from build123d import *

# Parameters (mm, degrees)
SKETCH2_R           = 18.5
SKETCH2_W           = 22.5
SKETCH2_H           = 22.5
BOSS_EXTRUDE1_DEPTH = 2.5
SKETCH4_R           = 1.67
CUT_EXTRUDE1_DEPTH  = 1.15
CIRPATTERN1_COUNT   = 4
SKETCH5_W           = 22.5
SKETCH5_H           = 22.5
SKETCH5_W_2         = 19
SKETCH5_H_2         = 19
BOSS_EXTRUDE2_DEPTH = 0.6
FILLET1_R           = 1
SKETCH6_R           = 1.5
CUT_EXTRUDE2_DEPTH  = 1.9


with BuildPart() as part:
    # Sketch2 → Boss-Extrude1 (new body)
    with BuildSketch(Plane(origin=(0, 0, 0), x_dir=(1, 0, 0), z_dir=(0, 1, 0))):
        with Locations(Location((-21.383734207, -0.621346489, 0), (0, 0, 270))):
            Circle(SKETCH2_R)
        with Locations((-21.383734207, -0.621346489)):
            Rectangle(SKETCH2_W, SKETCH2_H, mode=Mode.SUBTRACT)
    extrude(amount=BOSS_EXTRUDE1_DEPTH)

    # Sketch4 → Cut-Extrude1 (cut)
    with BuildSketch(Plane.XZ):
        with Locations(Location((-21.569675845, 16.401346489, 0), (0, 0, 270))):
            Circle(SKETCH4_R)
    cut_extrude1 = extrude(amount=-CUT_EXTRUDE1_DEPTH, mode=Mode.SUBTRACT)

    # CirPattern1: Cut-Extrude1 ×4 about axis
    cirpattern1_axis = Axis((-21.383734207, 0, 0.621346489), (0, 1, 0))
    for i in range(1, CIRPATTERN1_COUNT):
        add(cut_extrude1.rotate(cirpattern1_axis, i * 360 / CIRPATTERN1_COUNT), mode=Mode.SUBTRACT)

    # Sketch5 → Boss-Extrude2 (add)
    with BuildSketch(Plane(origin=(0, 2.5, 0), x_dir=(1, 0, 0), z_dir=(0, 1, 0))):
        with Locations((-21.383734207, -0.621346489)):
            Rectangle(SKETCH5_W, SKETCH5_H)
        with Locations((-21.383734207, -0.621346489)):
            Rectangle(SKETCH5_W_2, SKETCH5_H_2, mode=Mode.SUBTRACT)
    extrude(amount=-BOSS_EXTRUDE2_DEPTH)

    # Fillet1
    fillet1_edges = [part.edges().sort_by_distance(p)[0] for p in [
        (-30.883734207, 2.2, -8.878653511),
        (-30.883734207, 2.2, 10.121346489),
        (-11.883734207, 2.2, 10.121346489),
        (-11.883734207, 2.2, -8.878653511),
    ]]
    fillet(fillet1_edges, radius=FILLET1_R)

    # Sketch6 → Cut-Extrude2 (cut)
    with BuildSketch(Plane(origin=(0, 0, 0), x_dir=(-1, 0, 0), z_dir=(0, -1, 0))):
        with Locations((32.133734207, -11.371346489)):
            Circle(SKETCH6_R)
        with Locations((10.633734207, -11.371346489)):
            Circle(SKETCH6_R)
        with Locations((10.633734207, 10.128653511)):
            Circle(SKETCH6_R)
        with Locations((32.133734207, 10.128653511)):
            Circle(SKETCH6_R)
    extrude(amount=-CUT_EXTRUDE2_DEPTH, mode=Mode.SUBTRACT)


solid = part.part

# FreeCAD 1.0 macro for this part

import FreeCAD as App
import Part
import Sketcher


def edges_at(feature, points):
    """Names of the edges that pass closest to the given points."""
    edges = feature.Shape.Edges
    near = lambda p: min(range(len(edges)), key=lambda i: edges[i].distToShape(Part.Vertex(*p))[0])
    return sorted({f"Edge{near(p) + 1}" for p in points})


def add_polygon(sketch, points):
    """Adds a closed chain of lines whose ends are joined by coincident constraints."""
    first, n = sketch.GeometryCount, len(points)
    for a, b in zip(points, points[1:] + points[:1]):
        sketch.addGeometry(Part.LineSegment(App.Vector(*a, 0), App.Vector(*b, 0)), False)
    for i in range(n):
        sketch.addConstraint(Sketcher.Constraint("Coincident", first + i, 2, first + (i + 1) % n, 1))

doc = App.newDocument("Part")
body = doc.addObject("PartDesign::Body", "Body")

# Sketch on XZ plane
sketch1 = body.newObject("Sketcher::SketchObject", "Sketch")
sketch1.AttachmentSupport = (doc.getObject("XZ_Plane"), [""])
sketch1.MapMode = "FlatFace"
sketch1.addGeometry(Part.Circle(App.Vector(-21.383734, 0.621346, 0), App.Vector(0, 0, 1), 18.5), False)  # 0
add_polygon(sketch1, [(-10.133734, 11.871346), (-32.633734, 11.871346), (-32.633734, -10.628654), (-10.133734, -10.628654)])  # lines 1-4
sketch1.addConstraint(Sketcher.Constraint("Horizontal", 1))
sketch1.addConstraint(Sketcher.Constraint("Vertical", 2))
sketch1.addConstraint(Sketcher.Constraint("Horizontal", 3))
sketch1.addConstraint(Sketcher.Constraint("Vertical", 4))
sketch1.addConstraint(Sketcher.Constraint("Equal", 3, 2))
sketch1.addConstraint(Sketcher.Constraint("Diameter", 0, 37.0))
sketch1.addConstraint(Sketcher.Constraint("DistanceX", 1, 2, 1, 1, 22.5))
sketch1.addConstraint(Sketcher.Constraint("DistanceX", 1, 2, 0, 3, 11.25))
sketch1.addConstraint(Sketcher.Constraint("DistanceY", 0, 3, 1, 2, 11.25))
sketch1.addConstraint(Sketcher.Constraint("DistanceX", 0, 3, -1, 1, 21.383734))
sketch1.addConstraint(Sketcher.Constraint("DistanceY", -1, 1, 0, 3, 0.621346))
pad1 = body.newObject("PartDesign::Pad", "Pad")
pad1.Profile = sketch1
pad1.Length = 2.5
pad1.Reversed = True

# Sketch on XZ plane
sketch2 = body.newObject("Sketcher::SketchObject", "Sketch001")
sketch2.AttachmentSupport = (doc.getObject("XZ_Plane"), [""])
sketch2.MapMode = "FlatFace"
sketch2.addGeometry(Part.Circle(App.Vector(-21.569676, 16.401346, 0), App.Vector(0, 0, 1), 1.67), False)
sketch2.addConstraint(Sketcher.Constraint("Diameter", 0, 3.34))
sketch2.addConstraint(Sketcher.Constraint("DistanceX", 0, 3, -1, 1, 21.569676))
sketch2.addConstraint(Sketcher.Constraint("DistanceY", -1, 1, 0, 3, 16.401346))
pocket1 = body.newObject("PartDesign::Pocket", "Pocket")
pocket1.Profile = sketch2
pocket1.Length = 1.15
doc.recompute()

datumline = body.newObject("PartDesign::Line", "DatumLine")
datumline.Placement = App.Placement(App.Vector(-21.383734, 0, 0.621346), App.Rotation(App.Vector(0, 0, 1), App.Vector(0, 1, 0)))
polarpattern = body.newObject("PartDesign::PolarPattern", "PolarPattern")
polarpattern.Originals = [pocket1]
polarpattern.Axis = (datumline, [""])
polarpattern.Angle = 360
polarpattern.Occurrences = 4
body.Tip = polarpattern

# Sketch on XZ plane
sketch3 = body.newObject("Sketcher::SketchObject", "Sketch002")
sketch3.AttachmentSupport = (doc.getObject("XZ_Plane"), [""])
sketch3.MapMode = "FlatFace"
sketch3.AttachmentOffset = App.Placement(App.Vector(0, 0, -2.5), App.Rotation())
add_polygon(sketch3, [(-32.633734, -10.628654), (-32.633734, 11.871346), (-10.133734, 11.871346), (-10.133734, -10.628654)])  # lines 0-3
add_polygon(sketch3, [(-11.883734, 10.121346), (-30.883734, 10.121346), (-30.883734, -8.878654), (-11.883734, -8.878654)])  # lines 4-7
sketch3.addConstraint(Sketcher.Constraint("Vertical", 0))
sketch3.addConstraint(Sketcher.Constraint("Horizontal", 1))
sketch3.addConstraint(Sketcher.Constraint("Vertical", 2))
sketch3.addConstraint(Sketcher.Constraint("Horizontal", 3))
sketch3.addConstraint(Sketcher.Constraint("Horizontal", 4))
sketch3.addConstraint(Sketcher.Constraint("Vertical", 5))
sketch3.addConstraint(Sketcher.Constraint("Horizontal", 6))
sketch3.addConstraint(Sketcher.Constraint("Vertical", 7))
sketch3.addConstraint(Sketcher.Constraint("Equal", 3, 0))
sketch3.addConstraint(Sketcher.Constraint("Equal", 6, 5))
sketch3.addConstraint(Sketcher.Constraint("DistanceX", 4, 2, 4, 1, 19.0))
sketch3.addConstraint(Sketcher.Constraint("DistanceX", 1, 1, 1, 2, 22.5))
sketch3.addConstraint(Sketcher.Constraint("DistanceX", 0, 2, 4, 2, 1.75))
sketch3.addConstraint(Sketcher.Constraint("DistanceY", 4, 2, 0, 2, 1.75))
sketch3.addConstraint(Sketcher.Constraint("DistanceX", 0, 2, -1, 1, 32.633734))
sketch3.addConstraint(Sketcher.Constraint("DistanceY", -1, 1, 0, 2, 11.871346))
pad2 = body.newObject("PartDesign::Pad", "Pad001")
pad2.Profile = sketch3
pad2.Length = 0.6
doc.recompute()

fillet = body.newObject("PartDesign::Fillet", "Fillet")
fillet.Base = (pad2, edges_at(pad2, [
    (-30.884, 2.2, -8.879),
    (-30.884, 2.2, 10.121),
    (-11.884, 2.2, 10.121),
    (-11.884, 2.2, -8.879),
]))
fillet.Radius = 1

# Sketch on XZ plane
sketch4 = body.newObject("Sketcher::SketchObject", "Sketch003")
sketch4.AttachmentSupport = (doc.getObject("XZ_Plane"), [""])
sketch4.MapMode = "FlatFace"
sketch4.addGeometry(Part.Circle(App.Vector(-32.133734, 11.371346, 0), App.Vector(0, 0, 1), 1.5), False)
sketch4.addGeometry(Part.Circle(App.Vector(-10.633734, 11.371346, 0), App.Vector(0, 0, 1), 1.5), False)
sketch4.addGeometry(Part.Circle(App.Vector(-10.633734, -10.128654, 0), App.Vector(0, 0, 1), 1.5), False)
sketch4.addGeometry(Part.Circle(App.Vector(-32.133734, -10.128654, 0), App.Vector(0, 0, 1), 1.5), False)
sketch4.addConstraint(Sketcher.Constraint("Equal", 0, 1))
sketch4.addConstraint(Sketcher.Constraint("Equal", 1, 2))
sketch4.addConstraint(Sketcher.Constraint("Equal", 2, 3))
sketch4.addConstraint(Sketcher.Constraint("Horizontal", 0, 3, 1, 3))
sketch4.addConstraint(Sketcher.Constraint("Horizontal", 2, 3, 3, 3))
sketch4.addConstraint(Sketcher.Constraint("Vertical", 1, 3, 2, 3))
sketch4.addConstraint(Sketcher.Constraint("Vertical", 0, 3, 3, 3))
sketch4.addConstraint(Sketcher.Constraint("Diameter", 0, 3.0))
sketch4.addConstraint(Sketcher.Constraint("DistanceX", 0, 3, 1, 3, 21.5))
sketch4.addConstraint(Sketcher.Constraint("DistanceY", 2, 3, 1, 3, 21.5))
sketch4.addConstraint(Sketcher.Constraint("DistanceX", 0, 3, -1, 1, 32.133734))
sketch4.addConstraint(Sketcher.Constraint("DistanceY", -1, 1, 0, 3, 11.371346))
pocket2 = body.newObject("PartDesign::Pocket", "Pocket001")
pocket2.Profile = sketch4
pocket2.Length = 1.9

doc.recompute()
